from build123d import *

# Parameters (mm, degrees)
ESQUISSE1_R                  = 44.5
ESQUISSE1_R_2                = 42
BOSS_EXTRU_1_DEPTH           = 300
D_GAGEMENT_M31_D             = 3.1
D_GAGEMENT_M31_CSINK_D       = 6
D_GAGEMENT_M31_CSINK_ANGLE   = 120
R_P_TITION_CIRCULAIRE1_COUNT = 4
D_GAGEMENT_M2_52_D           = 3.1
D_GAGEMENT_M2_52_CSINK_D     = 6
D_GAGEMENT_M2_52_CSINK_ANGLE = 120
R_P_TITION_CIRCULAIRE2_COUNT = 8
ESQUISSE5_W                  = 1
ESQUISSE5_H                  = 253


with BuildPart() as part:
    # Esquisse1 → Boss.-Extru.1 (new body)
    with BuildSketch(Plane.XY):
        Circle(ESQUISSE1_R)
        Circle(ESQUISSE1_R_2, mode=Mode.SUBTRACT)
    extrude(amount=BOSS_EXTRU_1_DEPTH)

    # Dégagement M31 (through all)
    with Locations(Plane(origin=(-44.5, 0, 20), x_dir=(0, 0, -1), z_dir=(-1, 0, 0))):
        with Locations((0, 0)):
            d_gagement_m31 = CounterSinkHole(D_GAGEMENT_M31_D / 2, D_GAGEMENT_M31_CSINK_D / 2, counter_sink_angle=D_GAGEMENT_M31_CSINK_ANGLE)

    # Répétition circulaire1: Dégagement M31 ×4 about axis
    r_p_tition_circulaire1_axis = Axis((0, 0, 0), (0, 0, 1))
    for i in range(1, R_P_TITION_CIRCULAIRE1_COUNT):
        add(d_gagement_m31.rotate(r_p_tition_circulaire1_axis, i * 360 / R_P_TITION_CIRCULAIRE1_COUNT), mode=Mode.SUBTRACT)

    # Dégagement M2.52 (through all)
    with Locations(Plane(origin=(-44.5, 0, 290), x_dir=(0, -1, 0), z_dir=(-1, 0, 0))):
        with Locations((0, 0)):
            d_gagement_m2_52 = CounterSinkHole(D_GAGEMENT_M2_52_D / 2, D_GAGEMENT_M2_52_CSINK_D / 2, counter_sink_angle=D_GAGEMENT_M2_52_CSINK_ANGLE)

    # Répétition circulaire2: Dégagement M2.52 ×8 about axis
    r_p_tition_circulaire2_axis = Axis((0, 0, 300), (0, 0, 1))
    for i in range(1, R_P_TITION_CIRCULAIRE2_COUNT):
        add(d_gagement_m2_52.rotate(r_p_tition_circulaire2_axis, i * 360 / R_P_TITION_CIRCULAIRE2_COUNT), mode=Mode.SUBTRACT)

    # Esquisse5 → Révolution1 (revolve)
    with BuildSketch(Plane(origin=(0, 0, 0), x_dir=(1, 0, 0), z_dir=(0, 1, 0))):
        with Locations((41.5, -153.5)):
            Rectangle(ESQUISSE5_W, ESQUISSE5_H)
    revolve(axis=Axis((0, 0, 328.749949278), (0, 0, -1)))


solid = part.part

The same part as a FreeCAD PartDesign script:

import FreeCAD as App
import Part
import Sketcher

V = App.Vector


def add_polygon(sketch, points):
    """Adds a closed chain of lines whose ends are joined by coincident constraints."""
    first, n = sketch.GeometryCount, len(points)
    for a, b in zip(points, points[1:] + points[:1]):
        sketch.addGeometry(Part.LineSegment(App.Vector(*a, 0), App.Vector(*b, 0)), False)
    for i in range(n):
        sketch.addConstraint(Sketcher.Constraint("Coincident", first + i, 2, first + (i + 1) % n, 1))

doc = App.newDocument("Part")
body = doc.addObject("PartDesign::Body", "Body")

# Sketch on XY plane
sketch1 = body.newObject("Sketcher::SketchObject", "Sketch")
sketch1.AttachmentSupport = (doc.getObject("XY_Plane"), [""])
sketch1.MapMode = "FlatFace"
sketch1.addGeometry([
    Part.Circle(V(0, 0, 0), V(0, 0, 1), 44),
    Part.Circle(V(0, 0, 0), V(0, 0, 1), 42),
], False)
sketch1.addConstraint([
    Sketcher.Constraint("Coincident", 0, 3, -1, 1),
    Sketcher.Constraint("Coincident", 1, 3, -1, 1),
    Sketcher.Constraint("Diameter", 0, 89.0),
    Sketcher.Constraint("Diameter", 1, 84.0),
])
pad1 = body.newObject("PartDesign::Pad", "Pad")
pad1.Profile = sketch1
pad1.Length = 300

# Sketch on YZ plane
sketch2 = body.newObject("Sketcher::SketchObject", "Sketch001")
sketch2.AttachmentSupport = (doc.getObject("YZ_Plane"), [""])
sketch2.MapMode = "FlatFace"
sketch2.AttachmentOffset = App.Placement(V(0, 0, -44.5), App.Rotation())
sketch2.addGeometry(Part.Circle(V(0, 20, 0), V(0, 0, 1), 1.6), False)
sketch2.addConstraint([
    Sketcher.Constraint("PointOnObject", 0, 3, -2),
    Sketcher.Constraint("Diameter", 0, 3.1),
    Sketcher.Constraint("DistanceY", -1, 1, 0, 3, 20.0),
])
doc.recompute()
hole = body.newObject("PartDesign::Hole", "Hole")
hole.Profile = sketch2
hole.ThreadType = "None"
hole.Diameter = 3.1
hole.DepthType = "ThroughAll"
hole.HoleCutType = "Countersink"
hole.HoleCutDiameter = 6
hole.HoleCutCountersinkAngle = 120
hole.Reversed = True
doc.recompute()

polarpattern = body.newObject("PartDesign::PolarPattern", "PolarPattern")
polarpattern.Originals = [hole]
polarpattern.Axis = (doc.getObject("Z_Axis"), [""])
polarpattern.Angle = 360
polarpattern.Occurrences = 4
body.Tip = polarpattern

# Sketch on YZ plane
sketch3 = body.newObject("Sketcher::SketchObject", "Sketch002")
sketch3.AttachmentSupport = (doc.getObject("YZ_Plane"), [""])
sketch3.MapMode = "FlatFace"
sketch3.AttachmentOffset = App.Placement(V(0, 0, -44.5), App.Rotation())
sketch3.addGeometry(Part.Circle(V(0, 290, 0), V(0, 0, 1), 1.6), False)
sketch3.addConstraint([
    Sketcher.Constraint("PointOnObject", 0, 3, -2),
    Sketcher.Constraint("Diameter", 0, 3.1),
    Sketcher.Constraint("DistanceY", -1, 1, 0, 3, 290.0),
])
doc.recompute()
hole2 = body.newObject("PartDesign::Hole", "Hole001")
hole2.Profile = sketch3
hole2.ThreadType = "None"
hole2.Diameter = 3.1
hole2.DepthType = "ThroughAll"
hole2.HoleCutType = "Countersink"
hole2.HoleCutDiameter = 6
hole2.HoleCutCountersinkAngle = 120
hole2.Reversed = True
doc.recompute()

polarpattern2 = body.newObject("PartDesign::PolarPattern", "PolarPattern001")
polarpattern2.Originals = [hole2]
polarpattern2.Axis = (doc.getObject("Z_Axis"), [""])
polarpattern2.Angle = 360
polarpattern2.Occurrences = 8
body.Tip = polarpattern2

# Sketch on XZ plane
sketch4 = body.newObject("Sketcher::SketchObject", "Sketch003")
sketch4.AttachmentSupport = (doc.getObject("XZ_Plane"), [""])
sketch4.MapMode = "FlatFace"
add_polygon(sketch4, [(41, 27), (41, 280), (42, 280), (42, 27)])  # lines 0-3
sketch4.addConstraint([
    Sketcher.Constraint("Vertical", 0),
    Sketcher.Constraint("Horizontal", 1),
    Sketcher.Constraint("Vertical", 2),
    Sketcher.Constraint("Horizontal", 3),
    Sketcher.Constraint("DistanceX", 1, 1, 1, 2, 1.0),
    Sketcher.Constraint("DistanceY", 0, 1, 0, 2, 253.0),
    Sketcher.Constraint("DistanceX", -1, 1, 0, 2, 41.0),
    Sketcher.Constraint("DistanceY", -1, 1, 0, 2, 280.0),
])
revolution = body.newObject("PartDesign::Revolution", "Revolution")
revolution.Profile = sketch4
revolution.ReferenceAxis = (sketch4, ["V_Axis"])
revolution.Angle = 360

doc.recompute()
